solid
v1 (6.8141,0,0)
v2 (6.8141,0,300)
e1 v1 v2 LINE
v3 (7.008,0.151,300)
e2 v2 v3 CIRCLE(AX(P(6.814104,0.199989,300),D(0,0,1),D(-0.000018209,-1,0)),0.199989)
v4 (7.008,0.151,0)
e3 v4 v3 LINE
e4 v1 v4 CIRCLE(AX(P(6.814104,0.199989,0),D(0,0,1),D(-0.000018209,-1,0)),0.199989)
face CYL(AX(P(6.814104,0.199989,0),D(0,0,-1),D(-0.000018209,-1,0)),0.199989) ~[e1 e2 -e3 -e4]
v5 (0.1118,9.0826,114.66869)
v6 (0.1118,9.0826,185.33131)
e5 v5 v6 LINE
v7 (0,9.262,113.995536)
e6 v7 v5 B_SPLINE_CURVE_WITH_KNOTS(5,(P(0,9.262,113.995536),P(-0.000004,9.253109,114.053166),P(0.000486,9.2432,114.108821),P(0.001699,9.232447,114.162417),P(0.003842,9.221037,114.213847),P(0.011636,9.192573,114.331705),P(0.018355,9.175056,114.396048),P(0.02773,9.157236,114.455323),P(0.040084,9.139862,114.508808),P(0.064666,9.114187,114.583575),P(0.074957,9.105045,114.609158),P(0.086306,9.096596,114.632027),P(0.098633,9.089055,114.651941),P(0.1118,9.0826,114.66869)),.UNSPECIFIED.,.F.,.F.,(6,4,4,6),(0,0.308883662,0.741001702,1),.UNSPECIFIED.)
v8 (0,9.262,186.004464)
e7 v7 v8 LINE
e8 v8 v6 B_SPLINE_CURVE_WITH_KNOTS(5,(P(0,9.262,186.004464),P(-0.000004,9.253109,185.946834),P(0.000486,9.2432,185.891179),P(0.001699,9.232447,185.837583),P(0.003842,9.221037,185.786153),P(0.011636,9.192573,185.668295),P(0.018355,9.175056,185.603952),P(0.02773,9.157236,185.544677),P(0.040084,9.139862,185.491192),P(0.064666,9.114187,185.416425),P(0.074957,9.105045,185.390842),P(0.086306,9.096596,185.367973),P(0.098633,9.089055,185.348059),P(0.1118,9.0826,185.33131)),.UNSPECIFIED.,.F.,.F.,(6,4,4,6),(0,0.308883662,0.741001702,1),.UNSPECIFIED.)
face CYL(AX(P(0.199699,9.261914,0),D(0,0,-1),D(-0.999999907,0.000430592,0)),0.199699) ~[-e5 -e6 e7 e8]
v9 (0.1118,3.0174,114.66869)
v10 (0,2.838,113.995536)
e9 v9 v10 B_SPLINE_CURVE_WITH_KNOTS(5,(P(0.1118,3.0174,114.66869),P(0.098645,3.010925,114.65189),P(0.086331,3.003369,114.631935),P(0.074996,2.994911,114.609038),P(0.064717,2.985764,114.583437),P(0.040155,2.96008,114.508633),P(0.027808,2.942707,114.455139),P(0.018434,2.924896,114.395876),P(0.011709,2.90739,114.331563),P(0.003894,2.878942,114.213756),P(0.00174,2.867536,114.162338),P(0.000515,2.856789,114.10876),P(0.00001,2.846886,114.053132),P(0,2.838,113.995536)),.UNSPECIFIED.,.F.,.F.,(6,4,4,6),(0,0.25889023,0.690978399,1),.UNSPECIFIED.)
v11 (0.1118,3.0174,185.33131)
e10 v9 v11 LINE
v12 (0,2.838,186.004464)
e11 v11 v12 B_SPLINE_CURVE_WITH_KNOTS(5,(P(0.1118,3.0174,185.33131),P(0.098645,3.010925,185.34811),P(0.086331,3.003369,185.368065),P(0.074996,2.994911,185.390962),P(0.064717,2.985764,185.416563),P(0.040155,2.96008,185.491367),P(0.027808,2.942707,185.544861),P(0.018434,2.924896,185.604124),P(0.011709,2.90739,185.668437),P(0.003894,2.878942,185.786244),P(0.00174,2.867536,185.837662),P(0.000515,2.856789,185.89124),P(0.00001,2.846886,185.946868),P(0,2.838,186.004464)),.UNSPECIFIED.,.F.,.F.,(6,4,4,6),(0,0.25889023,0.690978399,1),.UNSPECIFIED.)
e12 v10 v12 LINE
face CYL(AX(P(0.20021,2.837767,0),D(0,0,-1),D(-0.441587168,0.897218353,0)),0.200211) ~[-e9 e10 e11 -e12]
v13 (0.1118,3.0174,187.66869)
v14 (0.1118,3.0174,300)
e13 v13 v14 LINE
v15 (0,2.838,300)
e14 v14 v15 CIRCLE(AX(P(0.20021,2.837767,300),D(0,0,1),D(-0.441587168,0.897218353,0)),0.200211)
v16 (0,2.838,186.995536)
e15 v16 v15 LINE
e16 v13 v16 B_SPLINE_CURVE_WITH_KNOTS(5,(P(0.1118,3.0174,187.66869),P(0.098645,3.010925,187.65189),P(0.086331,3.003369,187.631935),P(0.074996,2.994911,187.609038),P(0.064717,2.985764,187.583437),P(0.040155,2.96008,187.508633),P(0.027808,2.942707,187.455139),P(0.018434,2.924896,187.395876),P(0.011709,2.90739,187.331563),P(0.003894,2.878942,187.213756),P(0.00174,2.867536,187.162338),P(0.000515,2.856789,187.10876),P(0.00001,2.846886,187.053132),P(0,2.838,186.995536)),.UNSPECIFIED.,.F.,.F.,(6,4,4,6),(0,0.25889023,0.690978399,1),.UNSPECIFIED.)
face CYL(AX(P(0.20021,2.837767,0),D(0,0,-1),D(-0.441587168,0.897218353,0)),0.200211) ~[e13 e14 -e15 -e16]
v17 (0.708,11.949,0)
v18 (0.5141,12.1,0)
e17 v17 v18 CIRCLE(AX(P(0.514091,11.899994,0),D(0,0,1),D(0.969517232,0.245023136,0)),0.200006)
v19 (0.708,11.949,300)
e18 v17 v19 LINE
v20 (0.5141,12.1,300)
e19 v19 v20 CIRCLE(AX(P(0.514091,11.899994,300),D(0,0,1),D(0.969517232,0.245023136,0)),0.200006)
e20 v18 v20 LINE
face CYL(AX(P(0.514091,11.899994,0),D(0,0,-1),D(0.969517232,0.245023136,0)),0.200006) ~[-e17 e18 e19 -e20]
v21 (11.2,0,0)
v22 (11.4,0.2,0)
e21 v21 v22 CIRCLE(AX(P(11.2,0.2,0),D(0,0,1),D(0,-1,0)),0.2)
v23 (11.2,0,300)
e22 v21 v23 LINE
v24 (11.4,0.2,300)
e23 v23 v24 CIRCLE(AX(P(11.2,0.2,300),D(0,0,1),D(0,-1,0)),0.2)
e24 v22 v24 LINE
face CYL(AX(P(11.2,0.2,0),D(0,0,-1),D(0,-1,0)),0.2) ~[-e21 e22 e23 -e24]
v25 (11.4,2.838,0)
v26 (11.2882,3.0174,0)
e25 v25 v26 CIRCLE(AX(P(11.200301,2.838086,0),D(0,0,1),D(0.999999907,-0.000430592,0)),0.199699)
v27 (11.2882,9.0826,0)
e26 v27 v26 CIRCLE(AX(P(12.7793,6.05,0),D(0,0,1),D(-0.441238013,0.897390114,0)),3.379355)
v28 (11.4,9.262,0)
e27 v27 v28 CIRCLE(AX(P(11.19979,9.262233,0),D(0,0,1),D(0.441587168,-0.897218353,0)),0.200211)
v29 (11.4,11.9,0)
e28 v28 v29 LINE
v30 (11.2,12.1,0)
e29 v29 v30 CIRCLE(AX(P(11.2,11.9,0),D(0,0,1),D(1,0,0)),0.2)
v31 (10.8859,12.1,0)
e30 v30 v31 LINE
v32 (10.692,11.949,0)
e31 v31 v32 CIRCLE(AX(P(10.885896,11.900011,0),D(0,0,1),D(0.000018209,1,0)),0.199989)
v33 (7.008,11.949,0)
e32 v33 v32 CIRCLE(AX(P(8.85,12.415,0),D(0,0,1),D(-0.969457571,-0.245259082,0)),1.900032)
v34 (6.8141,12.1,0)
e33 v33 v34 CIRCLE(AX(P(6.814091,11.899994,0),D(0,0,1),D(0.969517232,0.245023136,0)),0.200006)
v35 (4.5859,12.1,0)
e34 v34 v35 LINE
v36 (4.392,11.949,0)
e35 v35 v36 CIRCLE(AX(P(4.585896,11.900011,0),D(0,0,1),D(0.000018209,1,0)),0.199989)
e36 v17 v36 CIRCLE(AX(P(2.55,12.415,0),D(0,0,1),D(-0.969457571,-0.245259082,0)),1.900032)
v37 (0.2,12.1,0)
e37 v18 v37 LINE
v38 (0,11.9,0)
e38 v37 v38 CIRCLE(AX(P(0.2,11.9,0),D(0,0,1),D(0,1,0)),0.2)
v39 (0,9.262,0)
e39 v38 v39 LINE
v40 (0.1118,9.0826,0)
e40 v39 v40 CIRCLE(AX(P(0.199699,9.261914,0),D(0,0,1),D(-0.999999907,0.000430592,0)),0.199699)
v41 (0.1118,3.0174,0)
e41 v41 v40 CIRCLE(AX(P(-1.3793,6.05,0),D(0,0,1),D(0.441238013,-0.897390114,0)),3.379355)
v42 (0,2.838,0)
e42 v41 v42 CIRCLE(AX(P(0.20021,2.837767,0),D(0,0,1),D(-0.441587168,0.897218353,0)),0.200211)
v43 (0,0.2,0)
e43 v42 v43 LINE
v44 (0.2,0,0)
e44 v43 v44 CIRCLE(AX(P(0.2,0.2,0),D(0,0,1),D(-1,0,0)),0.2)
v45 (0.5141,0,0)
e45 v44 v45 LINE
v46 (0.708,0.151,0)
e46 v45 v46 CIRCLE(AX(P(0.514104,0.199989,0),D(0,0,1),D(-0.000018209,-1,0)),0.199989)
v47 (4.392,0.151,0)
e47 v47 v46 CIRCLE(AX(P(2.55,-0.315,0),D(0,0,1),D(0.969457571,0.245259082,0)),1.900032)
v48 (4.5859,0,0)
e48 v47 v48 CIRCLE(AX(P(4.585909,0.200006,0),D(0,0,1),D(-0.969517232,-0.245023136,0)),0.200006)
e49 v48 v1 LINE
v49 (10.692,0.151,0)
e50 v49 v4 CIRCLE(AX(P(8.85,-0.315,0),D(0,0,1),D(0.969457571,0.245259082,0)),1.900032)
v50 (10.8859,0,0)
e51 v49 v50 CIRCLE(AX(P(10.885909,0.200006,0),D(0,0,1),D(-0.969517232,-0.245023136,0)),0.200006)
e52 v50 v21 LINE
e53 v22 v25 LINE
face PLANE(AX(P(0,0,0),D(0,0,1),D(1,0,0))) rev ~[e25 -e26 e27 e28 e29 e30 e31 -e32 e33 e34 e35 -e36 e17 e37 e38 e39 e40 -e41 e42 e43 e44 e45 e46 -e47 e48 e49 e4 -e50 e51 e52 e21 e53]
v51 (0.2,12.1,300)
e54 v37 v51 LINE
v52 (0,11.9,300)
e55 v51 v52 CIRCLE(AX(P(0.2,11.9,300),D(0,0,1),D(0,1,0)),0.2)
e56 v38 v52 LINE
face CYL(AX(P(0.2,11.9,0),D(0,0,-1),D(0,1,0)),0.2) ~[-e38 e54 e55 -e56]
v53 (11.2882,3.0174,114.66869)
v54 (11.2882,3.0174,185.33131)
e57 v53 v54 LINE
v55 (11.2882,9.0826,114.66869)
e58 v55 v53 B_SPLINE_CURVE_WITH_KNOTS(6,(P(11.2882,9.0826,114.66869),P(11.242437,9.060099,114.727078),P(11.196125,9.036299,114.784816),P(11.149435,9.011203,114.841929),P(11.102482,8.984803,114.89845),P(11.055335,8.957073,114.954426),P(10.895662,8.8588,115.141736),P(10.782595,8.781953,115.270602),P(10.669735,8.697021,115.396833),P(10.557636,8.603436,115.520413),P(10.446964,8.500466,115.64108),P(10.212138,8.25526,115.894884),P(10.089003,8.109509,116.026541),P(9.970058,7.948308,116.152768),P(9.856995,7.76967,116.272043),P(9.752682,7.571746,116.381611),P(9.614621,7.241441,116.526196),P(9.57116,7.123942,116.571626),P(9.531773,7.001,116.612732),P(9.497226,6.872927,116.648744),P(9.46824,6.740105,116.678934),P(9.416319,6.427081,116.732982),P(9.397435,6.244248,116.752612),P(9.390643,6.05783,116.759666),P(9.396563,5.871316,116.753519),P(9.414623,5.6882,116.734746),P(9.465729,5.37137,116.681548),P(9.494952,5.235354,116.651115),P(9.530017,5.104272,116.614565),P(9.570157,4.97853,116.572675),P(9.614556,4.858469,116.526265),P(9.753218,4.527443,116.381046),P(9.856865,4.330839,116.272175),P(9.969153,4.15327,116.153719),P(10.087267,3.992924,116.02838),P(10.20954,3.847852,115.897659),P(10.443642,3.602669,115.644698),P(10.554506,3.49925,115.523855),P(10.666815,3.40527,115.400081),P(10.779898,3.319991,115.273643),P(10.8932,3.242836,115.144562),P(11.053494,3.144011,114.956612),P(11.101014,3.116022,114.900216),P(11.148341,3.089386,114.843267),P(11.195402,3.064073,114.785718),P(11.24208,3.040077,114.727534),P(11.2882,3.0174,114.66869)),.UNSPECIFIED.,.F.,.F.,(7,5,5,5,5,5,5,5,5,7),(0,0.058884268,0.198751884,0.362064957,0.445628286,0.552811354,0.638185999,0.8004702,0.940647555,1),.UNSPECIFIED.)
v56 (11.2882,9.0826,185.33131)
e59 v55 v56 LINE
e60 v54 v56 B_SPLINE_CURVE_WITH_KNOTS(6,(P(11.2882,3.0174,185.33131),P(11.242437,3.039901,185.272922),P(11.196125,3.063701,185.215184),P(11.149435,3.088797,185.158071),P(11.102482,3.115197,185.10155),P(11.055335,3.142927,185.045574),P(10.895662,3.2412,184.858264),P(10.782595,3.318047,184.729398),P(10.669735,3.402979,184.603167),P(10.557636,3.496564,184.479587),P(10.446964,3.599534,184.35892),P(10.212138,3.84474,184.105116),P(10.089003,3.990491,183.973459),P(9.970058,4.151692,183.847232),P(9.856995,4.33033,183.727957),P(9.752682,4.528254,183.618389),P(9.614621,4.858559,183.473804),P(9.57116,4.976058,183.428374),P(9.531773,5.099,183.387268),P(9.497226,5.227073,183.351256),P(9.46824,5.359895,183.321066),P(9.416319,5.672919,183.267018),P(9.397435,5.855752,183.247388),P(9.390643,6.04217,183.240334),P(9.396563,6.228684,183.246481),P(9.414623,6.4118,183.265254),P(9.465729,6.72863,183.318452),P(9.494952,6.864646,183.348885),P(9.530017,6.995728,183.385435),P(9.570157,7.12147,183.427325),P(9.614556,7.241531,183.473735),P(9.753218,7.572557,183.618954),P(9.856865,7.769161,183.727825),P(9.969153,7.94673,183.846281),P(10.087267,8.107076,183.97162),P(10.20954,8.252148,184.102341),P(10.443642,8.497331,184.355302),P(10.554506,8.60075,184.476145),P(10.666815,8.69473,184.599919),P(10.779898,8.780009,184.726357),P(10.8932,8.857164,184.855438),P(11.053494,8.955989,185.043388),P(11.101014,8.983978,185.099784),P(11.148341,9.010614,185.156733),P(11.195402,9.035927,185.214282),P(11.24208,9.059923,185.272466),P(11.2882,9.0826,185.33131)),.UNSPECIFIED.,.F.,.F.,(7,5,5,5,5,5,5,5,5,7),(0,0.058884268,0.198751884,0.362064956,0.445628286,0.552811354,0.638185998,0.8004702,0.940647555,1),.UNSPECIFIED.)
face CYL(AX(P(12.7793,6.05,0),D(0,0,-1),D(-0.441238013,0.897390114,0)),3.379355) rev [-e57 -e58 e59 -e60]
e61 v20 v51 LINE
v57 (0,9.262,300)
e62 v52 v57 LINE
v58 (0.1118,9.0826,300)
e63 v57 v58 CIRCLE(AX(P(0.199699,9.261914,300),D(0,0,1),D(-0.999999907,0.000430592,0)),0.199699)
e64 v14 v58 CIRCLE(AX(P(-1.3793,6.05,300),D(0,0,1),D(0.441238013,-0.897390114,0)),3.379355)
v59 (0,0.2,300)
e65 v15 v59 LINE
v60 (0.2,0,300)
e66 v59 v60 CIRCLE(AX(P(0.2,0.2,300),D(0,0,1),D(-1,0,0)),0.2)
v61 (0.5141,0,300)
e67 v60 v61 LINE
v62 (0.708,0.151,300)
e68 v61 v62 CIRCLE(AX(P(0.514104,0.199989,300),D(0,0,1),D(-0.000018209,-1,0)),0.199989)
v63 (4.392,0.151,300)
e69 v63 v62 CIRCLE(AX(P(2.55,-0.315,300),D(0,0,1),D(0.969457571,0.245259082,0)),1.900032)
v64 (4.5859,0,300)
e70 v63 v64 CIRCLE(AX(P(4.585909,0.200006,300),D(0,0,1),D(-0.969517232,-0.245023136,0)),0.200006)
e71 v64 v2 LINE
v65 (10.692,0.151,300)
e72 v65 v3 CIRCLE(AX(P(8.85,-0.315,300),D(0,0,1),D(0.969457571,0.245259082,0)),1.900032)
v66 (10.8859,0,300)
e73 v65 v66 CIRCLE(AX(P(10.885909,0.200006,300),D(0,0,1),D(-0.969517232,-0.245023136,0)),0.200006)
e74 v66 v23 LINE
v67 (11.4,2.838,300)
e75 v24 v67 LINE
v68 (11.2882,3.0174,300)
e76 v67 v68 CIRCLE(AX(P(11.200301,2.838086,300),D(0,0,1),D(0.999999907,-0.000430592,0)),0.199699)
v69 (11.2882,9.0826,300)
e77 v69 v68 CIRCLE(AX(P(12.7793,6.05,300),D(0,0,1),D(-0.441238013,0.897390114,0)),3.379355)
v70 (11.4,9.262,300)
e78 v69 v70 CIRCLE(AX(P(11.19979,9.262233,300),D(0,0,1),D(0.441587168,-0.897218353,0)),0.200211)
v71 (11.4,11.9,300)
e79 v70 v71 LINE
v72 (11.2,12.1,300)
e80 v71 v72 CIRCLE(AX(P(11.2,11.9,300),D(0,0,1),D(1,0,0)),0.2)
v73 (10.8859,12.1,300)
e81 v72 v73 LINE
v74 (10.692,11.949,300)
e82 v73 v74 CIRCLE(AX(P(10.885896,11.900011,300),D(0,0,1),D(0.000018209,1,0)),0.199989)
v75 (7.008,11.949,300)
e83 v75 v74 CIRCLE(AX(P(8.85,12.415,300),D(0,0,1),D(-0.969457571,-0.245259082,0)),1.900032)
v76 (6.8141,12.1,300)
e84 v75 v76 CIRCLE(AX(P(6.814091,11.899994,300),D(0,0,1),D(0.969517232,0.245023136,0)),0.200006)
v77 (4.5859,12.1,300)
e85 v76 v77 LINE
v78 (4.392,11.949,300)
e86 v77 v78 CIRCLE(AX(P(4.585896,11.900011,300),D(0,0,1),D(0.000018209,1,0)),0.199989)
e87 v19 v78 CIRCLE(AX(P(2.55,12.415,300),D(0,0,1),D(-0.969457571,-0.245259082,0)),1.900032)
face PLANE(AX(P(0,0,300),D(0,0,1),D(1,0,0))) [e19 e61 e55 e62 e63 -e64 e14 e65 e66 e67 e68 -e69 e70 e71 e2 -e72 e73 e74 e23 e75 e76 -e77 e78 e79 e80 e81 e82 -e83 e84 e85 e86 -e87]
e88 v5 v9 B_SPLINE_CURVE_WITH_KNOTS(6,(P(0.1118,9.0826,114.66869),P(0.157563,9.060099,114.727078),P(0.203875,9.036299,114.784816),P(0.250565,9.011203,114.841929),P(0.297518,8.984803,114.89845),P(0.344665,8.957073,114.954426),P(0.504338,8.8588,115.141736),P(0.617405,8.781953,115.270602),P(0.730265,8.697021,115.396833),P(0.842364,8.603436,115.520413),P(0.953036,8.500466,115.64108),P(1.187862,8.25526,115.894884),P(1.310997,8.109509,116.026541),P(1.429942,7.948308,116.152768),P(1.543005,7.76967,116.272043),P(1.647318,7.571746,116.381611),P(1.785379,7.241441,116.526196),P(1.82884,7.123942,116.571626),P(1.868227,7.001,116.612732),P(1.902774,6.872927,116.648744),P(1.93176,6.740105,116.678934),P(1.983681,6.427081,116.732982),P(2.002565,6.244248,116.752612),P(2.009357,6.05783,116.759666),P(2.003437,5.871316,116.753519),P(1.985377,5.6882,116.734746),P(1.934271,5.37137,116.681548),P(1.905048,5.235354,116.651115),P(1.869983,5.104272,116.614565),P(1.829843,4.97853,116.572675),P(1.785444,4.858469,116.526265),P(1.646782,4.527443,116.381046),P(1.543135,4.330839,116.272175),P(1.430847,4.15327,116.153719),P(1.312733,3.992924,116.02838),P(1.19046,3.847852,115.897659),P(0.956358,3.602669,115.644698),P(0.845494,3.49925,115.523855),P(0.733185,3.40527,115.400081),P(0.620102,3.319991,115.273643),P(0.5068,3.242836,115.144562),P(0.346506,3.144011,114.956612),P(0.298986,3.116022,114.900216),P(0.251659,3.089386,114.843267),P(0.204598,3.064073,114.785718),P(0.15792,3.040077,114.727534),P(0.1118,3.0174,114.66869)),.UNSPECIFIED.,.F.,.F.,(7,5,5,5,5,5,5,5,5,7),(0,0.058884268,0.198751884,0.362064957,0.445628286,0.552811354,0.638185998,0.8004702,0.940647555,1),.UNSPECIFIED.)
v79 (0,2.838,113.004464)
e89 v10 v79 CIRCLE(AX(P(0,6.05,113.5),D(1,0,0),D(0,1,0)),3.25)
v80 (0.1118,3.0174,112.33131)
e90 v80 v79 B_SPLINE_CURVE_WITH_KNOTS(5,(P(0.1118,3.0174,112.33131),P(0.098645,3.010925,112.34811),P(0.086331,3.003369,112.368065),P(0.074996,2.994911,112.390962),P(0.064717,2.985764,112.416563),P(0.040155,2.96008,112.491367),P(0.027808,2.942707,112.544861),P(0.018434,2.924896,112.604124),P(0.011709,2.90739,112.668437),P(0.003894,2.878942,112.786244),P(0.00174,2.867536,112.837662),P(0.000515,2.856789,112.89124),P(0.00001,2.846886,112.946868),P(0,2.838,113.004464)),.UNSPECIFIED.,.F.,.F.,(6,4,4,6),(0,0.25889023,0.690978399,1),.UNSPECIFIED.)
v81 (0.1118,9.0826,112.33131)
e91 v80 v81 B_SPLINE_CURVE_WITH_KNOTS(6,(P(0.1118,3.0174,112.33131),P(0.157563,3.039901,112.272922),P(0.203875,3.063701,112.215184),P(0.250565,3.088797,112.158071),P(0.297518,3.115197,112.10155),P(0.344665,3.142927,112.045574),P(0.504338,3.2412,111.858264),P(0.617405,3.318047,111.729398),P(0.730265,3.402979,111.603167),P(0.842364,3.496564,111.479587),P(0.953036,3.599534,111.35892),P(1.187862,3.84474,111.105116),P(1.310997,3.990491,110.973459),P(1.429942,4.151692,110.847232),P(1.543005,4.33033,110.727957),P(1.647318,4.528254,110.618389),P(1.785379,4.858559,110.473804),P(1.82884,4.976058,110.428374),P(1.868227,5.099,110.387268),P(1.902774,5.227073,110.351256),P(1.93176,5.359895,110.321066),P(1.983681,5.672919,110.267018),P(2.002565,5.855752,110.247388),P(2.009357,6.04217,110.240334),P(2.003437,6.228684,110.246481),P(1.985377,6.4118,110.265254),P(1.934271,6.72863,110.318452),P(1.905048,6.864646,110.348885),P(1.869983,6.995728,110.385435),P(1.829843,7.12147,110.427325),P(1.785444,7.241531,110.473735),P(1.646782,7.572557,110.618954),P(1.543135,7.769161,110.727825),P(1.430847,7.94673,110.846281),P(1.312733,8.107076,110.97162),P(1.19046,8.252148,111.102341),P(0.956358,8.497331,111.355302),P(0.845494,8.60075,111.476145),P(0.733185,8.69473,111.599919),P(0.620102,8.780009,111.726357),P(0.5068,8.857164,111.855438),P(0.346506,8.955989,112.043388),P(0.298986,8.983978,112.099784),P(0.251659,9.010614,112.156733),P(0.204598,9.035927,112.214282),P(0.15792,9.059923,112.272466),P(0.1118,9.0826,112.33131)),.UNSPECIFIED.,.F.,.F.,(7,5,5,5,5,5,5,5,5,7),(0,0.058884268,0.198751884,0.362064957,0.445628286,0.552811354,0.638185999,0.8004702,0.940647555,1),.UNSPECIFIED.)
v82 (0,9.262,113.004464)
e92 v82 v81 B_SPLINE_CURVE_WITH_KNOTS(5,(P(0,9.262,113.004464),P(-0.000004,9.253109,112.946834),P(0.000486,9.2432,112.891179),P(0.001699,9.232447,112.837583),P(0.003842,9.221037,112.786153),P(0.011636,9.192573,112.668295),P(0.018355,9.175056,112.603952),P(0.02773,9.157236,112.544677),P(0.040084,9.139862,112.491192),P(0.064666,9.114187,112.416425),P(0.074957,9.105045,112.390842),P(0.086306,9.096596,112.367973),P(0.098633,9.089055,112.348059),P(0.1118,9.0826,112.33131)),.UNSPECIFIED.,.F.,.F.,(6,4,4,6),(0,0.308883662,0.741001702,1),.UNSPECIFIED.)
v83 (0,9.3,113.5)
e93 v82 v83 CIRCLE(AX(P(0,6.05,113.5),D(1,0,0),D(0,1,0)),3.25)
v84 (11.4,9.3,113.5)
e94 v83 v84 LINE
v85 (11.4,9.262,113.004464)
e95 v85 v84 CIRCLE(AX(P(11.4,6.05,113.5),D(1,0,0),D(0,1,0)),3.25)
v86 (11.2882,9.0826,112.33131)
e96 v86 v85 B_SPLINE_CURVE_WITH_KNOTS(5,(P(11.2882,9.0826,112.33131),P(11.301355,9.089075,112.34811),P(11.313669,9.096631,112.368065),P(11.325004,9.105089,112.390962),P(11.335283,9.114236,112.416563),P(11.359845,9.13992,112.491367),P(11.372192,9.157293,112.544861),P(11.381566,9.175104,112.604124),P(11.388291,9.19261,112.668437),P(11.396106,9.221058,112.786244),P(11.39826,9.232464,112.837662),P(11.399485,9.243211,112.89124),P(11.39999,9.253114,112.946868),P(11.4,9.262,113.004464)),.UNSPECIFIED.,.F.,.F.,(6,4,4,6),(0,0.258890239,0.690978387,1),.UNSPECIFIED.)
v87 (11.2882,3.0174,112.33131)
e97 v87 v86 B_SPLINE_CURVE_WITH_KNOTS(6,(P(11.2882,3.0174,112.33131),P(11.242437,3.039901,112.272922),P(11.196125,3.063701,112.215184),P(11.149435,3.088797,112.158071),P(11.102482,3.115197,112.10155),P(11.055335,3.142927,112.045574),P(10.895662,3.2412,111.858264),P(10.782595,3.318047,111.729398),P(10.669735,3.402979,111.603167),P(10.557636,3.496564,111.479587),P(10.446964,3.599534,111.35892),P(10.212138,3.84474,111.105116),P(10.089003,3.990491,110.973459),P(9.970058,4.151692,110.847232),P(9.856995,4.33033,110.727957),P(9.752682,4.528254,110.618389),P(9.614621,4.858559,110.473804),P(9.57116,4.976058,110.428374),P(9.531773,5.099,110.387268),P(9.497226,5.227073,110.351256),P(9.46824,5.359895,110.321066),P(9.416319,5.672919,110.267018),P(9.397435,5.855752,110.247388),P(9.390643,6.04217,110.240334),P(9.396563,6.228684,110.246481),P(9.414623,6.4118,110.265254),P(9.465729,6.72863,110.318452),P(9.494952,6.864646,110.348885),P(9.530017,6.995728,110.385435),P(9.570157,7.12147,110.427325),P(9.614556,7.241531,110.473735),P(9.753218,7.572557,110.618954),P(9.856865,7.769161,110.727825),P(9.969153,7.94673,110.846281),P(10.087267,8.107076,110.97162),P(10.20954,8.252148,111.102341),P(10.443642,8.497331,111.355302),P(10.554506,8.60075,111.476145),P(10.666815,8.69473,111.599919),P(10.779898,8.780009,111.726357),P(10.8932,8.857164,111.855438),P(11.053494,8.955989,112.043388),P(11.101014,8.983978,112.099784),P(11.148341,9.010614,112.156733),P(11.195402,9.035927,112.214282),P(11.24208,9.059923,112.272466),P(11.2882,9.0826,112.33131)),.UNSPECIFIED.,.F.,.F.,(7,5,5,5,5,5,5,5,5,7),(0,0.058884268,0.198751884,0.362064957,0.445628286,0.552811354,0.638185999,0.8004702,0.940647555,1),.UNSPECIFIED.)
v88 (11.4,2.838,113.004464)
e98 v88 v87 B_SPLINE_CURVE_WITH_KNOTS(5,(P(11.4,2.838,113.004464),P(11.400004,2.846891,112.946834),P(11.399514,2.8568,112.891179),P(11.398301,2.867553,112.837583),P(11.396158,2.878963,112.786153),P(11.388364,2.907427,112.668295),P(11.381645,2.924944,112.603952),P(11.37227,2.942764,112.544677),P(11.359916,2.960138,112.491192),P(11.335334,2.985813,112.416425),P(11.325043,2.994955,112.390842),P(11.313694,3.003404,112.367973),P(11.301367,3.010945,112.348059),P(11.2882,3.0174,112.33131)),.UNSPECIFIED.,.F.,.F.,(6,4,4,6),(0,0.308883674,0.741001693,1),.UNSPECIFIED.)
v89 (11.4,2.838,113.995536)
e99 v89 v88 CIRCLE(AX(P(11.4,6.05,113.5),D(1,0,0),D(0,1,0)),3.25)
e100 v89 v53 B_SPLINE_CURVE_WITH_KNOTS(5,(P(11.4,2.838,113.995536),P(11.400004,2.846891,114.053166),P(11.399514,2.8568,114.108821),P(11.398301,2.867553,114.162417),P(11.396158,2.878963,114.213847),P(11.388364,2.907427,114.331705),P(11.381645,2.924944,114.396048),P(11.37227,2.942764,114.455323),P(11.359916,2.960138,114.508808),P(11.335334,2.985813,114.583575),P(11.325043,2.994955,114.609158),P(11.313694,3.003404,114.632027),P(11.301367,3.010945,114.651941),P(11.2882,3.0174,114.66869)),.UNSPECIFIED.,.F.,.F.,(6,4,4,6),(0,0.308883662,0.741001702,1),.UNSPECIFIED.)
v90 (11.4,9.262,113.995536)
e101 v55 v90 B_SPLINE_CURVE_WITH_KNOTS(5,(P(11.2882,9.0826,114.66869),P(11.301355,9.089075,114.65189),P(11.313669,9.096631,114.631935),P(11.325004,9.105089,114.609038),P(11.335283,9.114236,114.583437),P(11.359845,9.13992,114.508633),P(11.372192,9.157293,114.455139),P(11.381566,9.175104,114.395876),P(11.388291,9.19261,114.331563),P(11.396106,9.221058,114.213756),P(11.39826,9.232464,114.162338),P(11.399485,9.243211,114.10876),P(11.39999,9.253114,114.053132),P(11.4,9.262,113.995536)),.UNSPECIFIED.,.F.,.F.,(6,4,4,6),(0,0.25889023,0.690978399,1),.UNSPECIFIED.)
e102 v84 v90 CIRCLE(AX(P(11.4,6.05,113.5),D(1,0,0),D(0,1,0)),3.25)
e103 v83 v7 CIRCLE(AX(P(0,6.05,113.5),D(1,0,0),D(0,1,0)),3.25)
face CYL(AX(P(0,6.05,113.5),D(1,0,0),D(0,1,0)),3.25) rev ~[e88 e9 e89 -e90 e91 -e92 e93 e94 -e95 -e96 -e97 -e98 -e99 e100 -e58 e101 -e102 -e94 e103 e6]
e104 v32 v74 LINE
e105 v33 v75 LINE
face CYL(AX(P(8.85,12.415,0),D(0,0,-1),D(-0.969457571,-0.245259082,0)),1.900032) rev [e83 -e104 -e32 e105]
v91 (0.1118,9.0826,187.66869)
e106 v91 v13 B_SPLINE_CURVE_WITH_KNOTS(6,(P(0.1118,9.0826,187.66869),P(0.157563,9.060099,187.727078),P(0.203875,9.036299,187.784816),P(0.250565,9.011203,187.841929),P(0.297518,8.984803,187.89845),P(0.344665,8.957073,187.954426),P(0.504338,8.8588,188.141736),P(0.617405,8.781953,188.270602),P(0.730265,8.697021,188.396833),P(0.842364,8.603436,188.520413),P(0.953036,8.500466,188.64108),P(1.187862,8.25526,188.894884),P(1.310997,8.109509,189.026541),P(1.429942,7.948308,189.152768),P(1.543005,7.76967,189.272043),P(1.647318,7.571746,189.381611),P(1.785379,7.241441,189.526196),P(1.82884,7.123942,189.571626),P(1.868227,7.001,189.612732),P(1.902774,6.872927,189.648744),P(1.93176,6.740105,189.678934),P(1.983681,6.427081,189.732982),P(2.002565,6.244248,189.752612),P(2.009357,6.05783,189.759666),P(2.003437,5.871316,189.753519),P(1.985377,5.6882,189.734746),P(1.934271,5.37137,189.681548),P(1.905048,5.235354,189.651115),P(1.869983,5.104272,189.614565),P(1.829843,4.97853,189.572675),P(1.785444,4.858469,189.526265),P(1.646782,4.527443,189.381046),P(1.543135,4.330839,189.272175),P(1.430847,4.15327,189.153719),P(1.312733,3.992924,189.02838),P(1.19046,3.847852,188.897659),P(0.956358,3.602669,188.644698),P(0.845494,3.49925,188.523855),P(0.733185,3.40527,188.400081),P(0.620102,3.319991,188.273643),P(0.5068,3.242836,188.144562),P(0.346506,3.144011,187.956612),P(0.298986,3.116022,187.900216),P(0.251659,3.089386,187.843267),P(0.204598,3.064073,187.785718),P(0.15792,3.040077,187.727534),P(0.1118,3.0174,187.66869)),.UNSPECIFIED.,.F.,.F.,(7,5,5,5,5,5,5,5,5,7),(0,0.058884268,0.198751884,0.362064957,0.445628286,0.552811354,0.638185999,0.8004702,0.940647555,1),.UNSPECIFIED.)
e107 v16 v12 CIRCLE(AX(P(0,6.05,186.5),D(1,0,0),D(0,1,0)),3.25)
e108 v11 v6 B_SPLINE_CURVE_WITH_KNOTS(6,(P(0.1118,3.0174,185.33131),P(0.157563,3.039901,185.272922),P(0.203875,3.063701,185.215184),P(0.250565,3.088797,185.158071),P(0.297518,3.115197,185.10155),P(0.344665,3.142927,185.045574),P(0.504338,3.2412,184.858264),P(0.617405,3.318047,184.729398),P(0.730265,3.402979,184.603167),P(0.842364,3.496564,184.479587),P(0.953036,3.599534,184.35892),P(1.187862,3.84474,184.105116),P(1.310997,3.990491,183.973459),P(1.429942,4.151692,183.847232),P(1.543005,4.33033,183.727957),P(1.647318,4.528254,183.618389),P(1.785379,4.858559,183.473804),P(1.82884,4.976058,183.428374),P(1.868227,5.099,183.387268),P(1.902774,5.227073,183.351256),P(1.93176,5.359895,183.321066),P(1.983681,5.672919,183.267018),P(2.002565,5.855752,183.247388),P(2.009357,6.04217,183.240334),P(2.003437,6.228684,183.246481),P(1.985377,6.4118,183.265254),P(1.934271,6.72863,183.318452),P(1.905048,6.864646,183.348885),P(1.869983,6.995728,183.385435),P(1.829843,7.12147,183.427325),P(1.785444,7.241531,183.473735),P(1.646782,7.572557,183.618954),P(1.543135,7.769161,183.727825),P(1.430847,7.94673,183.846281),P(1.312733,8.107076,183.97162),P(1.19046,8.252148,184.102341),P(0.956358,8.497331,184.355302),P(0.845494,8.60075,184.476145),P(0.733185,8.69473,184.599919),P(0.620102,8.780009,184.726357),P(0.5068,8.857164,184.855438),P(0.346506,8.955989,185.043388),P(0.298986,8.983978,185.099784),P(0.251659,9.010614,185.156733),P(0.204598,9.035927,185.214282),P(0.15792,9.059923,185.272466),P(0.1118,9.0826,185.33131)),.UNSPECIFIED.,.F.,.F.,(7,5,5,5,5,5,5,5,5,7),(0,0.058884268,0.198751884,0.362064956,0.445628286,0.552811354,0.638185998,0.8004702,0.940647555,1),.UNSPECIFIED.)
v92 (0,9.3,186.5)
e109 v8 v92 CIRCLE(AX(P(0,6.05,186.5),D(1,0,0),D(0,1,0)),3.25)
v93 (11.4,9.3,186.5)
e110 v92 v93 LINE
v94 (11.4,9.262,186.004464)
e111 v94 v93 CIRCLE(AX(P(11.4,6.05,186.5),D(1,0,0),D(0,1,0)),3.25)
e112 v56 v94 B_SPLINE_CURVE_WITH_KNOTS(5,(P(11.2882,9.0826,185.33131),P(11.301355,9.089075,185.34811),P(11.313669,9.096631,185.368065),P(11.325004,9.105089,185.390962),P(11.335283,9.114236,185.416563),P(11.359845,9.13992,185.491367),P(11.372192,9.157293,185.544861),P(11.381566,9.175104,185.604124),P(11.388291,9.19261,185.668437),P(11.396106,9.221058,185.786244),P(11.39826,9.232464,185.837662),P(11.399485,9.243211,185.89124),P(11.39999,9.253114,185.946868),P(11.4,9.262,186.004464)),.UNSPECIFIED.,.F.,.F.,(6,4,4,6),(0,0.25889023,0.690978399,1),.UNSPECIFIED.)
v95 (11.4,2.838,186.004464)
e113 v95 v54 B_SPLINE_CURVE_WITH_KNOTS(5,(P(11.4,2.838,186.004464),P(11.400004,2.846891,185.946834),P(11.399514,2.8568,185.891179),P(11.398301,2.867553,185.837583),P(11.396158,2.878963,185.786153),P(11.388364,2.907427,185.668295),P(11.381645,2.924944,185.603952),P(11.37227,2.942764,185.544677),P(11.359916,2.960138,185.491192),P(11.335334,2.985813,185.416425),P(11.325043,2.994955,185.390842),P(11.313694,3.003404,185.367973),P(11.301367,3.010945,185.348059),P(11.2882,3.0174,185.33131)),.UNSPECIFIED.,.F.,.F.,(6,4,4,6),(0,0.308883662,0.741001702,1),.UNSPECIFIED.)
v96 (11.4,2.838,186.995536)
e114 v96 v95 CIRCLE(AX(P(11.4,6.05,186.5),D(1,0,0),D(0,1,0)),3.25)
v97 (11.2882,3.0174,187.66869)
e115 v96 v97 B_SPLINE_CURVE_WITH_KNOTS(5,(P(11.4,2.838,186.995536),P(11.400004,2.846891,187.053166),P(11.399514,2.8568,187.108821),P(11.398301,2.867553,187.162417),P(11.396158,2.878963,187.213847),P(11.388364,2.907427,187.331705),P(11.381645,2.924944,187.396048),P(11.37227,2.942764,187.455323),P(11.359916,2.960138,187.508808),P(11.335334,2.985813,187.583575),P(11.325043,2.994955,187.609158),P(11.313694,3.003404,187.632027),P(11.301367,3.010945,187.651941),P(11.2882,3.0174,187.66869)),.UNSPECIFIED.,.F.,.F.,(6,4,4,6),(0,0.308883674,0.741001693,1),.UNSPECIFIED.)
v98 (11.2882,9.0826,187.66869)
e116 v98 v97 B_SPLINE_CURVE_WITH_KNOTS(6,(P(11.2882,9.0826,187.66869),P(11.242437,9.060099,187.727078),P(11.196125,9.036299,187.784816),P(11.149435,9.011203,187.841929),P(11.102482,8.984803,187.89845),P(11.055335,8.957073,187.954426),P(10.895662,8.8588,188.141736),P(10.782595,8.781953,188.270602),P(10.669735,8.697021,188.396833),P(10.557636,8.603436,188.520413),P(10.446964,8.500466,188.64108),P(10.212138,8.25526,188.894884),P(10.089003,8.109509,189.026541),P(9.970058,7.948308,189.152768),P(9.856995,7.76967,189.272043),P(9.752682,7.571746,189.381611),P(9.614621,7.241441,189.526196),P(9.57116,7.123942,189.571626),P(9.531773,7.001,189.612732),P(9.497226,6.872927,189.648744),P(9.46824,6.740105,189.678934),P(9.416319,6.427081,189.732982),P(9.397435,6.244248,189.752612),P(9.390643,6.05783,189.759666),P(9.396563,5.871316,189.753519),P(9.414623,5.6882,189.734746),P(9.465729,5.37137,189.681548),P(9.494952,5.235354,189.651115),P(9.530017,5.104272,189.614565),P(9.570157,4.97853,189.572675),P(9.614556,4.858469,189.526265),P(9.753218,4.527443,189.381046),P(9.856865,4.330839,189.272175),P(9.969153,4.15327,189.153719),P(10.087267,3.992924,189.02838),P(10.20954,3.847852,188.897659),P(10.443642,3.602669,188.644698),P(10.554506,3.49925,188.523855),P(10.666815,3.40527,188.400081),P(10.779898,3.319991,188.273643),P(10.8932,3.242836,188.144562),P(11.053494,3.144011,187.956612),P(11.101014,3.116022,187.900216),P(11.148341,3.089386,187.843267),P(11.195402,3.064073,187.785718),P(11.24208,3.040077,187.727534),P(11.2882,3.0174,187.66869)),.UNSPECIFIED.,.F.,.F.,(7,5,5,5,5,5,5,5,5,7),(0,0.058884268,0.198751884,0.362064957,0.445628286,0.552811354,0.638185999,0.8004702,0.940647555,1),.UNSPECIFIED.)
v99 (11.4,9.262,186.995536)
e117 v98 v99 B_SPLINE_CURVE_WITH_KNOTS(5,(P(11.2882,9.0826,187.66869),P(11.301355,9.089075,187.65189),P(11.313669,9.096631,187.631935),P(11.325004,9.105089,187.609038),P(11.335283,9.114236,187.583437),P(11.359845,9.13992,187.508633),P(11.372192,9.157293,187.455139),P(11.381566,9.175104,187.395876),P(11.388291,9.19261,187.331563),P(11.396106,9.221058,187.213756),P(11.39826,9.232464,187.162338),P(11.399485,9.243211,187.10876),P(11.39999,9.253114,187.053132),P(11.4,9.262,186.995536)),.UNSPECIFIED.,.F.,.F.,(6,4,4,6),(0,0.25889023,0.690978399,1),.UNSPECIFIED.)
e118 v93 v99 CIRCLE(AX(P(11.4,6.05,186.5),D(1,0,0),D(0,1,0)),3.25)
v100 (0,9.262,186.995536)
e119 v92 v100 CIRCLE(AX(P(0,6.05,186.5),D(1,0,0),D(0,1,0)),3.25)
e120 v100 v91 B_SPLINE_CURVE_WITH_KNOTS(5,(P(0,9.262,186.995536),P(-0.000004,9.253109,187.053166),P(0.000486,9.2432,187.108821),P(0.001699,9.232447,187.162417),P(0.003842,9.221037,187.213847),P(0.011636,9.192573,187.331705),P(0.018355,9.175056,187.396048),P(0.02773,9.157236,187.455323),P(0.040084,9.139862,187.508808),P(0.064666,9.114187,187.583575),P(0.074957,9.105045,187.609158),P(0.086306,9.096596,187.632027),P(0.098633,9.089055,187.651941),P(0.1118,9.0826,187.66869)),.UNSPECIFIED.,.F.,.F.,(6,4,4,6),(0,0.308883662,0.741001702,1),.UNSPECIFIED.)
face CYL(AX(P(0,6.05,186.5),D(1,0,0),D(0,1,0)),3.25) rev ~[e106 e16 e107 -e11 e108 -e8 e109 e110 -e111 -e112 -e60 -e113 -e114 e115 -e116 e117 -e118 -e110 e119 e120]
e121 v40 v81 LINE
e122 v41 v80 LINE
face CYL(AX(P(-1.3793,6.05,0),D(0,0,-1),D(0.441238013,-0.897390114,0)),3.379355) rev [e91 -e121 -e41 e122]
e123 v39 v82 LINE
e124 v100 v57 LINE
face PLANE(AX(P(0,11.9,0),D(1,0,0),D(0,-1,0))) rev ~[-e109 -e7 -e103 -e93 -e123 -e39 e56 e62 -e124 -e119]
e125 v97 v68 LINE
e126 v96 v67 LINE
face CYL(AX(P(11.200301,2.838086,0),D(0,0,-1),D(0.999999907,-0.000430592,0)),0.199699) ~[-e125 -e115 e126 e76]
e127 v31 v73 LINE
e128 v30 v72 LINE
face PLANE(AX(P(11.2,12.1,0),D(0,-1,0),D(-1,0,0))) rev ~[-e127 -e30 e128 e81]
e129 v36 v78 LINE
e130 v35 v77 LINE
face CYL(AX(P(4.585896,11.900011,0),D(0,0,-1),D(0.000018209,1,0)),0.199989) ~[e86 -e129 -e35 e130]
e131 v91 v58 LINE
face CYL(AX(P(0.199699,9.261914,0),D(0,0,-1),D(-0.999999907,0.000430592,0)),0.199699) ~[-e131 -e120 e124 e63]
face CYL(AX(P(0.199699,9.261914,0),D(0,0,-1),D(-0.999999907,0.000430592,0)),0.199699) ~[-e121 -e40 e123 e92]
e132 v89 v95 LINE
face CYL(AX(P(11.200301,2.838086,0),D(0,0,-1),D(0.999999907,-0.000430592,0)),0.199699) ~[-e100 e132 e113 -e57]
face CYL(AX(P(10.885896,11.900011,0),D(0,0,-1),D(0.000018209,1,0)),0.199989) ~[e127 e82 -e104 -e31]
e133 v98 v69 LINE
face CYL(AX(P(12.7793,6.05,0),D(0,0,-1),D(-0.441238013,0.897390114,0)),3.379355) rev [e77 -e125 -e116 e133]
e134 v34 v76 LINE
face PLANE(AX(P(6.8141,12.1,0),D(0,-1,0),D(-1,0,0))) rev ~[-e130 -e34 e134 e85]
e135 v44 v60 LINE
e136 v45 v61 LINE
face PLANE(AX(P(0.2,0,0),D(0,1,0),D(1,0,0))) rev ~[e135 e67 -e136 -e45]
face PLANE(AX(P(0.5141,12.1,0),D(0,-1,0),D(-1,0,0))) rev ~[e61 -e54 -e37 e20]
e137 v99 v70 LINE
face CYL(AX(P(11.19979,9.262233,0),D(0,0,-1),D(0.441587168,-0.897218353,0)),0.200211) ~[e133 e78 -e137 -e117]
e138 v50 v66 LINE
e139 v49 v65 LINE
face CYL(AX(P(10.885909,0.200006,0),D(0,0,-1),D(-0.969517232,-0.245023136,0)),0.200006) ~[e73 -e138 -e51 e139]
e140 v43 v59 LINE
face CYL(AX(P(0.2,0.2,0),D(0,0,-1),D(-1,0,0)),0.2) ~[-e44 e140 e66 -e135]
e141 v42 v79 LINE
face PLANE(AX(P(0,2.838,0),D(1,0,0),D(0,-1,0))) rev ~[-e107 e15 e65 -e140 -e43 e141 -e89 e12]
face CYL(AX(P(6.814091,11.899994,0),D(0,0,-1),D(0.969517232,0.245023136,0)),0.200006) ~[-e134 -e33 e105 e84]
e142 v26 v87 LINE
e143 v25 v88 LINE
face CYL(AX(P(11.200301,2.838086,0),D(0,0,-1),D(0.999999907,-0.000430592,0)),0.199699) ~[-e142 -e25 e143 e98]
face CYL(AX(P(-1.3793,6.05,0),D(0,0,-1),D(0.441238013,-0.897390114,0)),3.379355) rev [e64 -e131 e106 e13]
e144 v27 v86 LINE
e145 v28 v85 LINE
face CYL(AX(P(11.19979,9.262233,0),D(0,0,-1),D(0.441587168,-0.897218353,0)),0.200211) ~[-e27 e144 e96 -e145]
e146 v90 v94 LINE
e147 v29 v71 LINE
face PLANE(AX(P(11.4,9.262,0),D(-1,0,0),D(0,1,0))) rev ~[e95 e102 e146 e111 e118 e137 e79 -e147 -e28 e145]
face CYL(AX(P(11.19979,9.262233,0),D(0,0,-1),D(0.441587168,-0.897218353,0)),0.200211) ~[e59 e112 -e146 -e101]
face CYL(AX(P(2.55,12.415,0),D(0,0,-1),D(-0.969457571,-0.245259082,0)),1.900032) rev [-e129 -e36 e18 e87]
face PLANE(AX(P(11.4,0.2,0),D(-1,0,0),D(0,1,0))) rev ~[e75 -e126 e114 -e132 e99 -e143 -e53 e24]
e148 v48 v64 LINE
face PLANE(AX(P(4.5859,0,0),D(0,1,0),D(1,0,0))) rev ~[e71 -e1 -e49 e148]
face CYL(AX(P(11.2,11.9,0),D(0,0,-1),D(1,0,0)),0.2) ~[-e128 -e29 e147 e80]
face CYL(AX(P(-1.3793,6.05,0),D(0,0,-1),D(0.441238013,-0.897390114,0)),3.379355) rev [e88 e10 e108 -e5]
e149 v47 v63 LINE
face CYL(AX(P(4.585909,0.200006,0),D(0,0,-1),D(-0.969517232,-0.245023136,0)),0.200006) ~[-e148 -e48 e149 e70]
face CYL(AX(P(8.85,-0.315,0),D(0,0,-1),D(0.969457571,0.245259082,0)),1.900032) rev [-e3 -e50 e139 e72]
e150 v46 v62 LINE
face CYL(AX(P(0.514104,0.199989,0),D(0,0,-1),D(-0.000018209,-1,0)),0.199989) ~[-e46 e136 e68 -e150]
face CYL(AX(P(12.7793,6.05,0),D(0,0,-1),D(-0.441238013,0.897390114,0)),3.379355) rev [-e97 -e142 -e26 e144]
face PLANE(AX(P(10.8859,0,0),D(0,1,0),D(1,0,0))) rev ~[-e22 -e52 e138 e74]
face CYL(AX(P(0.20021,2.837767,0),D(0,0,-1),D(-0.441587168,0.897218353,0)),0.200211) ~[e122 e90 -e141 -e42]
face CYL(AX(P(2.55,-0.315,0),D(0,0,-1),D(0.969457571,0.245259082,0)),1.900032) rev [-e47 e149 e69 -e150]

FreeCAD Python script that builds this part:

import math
import FreeCAD as App
import Part
import Sketcher


def add_polygon(sketch, points):
    """Adds a closed chain of lines whose ends are joined by coincident constraints."""
    first, n = sketch.GeometryCount, len(points)
    for a, b in zip(points, points[1:] + points[:1]):
        sketch.addGeometry(Part.LineSegment(App.Vector(*a, 0), App.Vector(*b, 0)), False)
    for i in range(n):
        sketch.addConstraint(Sketcher.Constraint("Coincident", first + i, 2, first + (i + 1) % n, 1))

doc = App.newDocument("Part")
body = doc.addObject("PartDesign::Body", "Body")

# Sketch on XY plane
sketch1 = doc.addObject("Sketcher::SketchObject", "Sketch")
body.addObject(sketch1)
sketch1.AttachmentSupport = (doc.XY_Plane, [""])
sketch1.MapMode = "FlatFace"
sketch1.addGeometry([
    Part.LineSegment(App.Vector(0, 2.838, 0), App.Vector(0, 0.2, 0)),  # 0
    Part.ArcOfCircle(Part.Circle(App.Vector(0.2, 0.2, 0), App.Vector(0, 0, 1), 0.2), math.radians(180), math.radians(270)),  # 1
    Part.LineSegment(App.Vector(0.2, 0, 0), App.Vector(0.5141, 0, 0)),  # 2
    Part.ArcOfCircle(Part.Circle(App.Vector(0.5141, 0.2, 0), App.Vector(0, 0, 1), 0.2), math.radians(-90), math.radians(-14.182158)),  # 3
    Part.ArcOfCircle(Part.Circle(App.Vector(2.55, -0.315, 0), App.Vector(0, 0, 1), 1.900032), math.radians(14.197145), math.radians(165.802855)),  # 4
    Part.ArcOfCircle(Part.Circle(App.Vector(4.5859, 0.2, 0), App.Vector(0, 0, 1), 0.199996), math.radians(-165.817842), math.radians(-90)),  # 5
    Part.LineSegment(App.Vector(4.5859, 0, 0), App.Vector(6.8141, 0, 0)),  # 6
    Part.ArcOfCircle(Part.Circle(App.Vector(6.8141, 0.2, 0), App.Vector(0, 0, 1), 0.2), math.radians(-90), math.radians(-14.182158)),  # 7
    Part.ArcOfCircle(Part.Circle(App.Vector(8.85, -0.315, 0), App.Vector(0, 0, 1), 1.900032), math.radians(14.197145), math.radians(165.802855)),  # 8
    Part.ArcOfCircle(Part.Circle(App.Vector(10.8859, 0.2, 0), App.Vector(0, 0, 1), 0.199996), math.radians(-165.817842), math.radians(-90)),  # 9
    Part.LineSegment(App.Vector(10.8859, 0, 0), App.Vector(11.2, 0, 0)),  # 10
    Part.ArcOfCircle(Part.Circle(App.Vector(11.2, 0.2, 0), App.Vector(0, 0, 1), 0.2), math.radians(-90), math.radians(0)),  # 11
    Part.LineSegment(App.Vector(11.4, 0.2, 0), App.Vector(11.4, 2.838, 0)),  # 12
    Part.ArcOfCircle(Part.Circle(App.Vector(11.2, 2.838, 0), App.Vector(0, 0, 1), 0.2), math.radians(0), math.radians(63.819478)),  # 13
    Part.ArcOfCircle(Part.Circle(App.Vector(12.7793, 6.05, 0), App.Vector(0, 0, 1), 3.379355), math.radians(116.182898), math.radians(243.817102)),  # 14
    Part.ArcOfCircle(Part.Circle(App.Vector(11.2, 9.262, 0), App.Vector(0, 0, 1), 0.199909), math.radians(-63.819478), math.radians(0)),  # 15
    Part.LineSegment(App.Vector(11.4, 9.262, 0), App.Vector(11.4, 11.9, 0)),  # 16
    Part.ArcOfCircle(Part.Circle(App.Vector(11.2, 11.9, 0), App.Vector(0, 0, 1), 0.2), math.radians(0), math.radians(90)),  # 17
    Part.LineSegment(App.Vector(11.2, 12.1, 0), App.Vector(10.8859, 12.1, 0)),  # 18
    Part.ArcOfCircle(Part.Circle(App.Vector(10.8859, 11.9, 0), App.Vector(0, 0, 1), 0.2), math.radians(90), math.radians(165.817842)),  # 19
    Part.ArcOfCircle(Part.Circle(App.Vector(8.85, 12.415, 0), App.Vector(0, 0, 1), 1.900032), math.radians(-165.802855), math.radians(-14.197145)),  # 20
    Part.ArcOfCircle(Part.Circle(App.Vector(6.8141, 11.9, 0), App.Vector(0, 0, 1), 0.199996), math.radians(14.182158), math.radians(90)),  # 21
    Part.LineSegment(App.Vector(6.8141, 12.1, 0), App.Vector(4.5859, 12.1, 0)),  # 22
    Part.ArcOfCircle(Part.Circle(App.Vector(4.5859, 11.9, 0), App.Vector(0, 0, 1), 0.2), math.radians(90), math.radians(165.817842)),  # 23
    Part.ArcOfCircle(Part.Circle(App.Vector(2.55, 12.415, 0), App.Vector(0, 0, 1), 1.900032), math.radians(-165.802855), math.radians(-14.197145)),  # 24
    Part.ArcOfCircle(Part.Circle(App.Vector(0.5141, 11.9, 0), App.Vector(0, 0, 1), 0.199996), math.radians(14.182158), math.radians(90)),  # 25
    Part.LineSegment(App.Vector(0.5141, 12.1, 0), App.Vector(0.2, 12.1, 0)),  # 26
    Part.ArcOfCircle(Part.Circle(App.Vector(0.2, 11.9, 0), App.Vector(0, 0, 1), 0.2), math.radians(90), math.radians(180)),  # 27
    Part.LineSegment(App.Vector(0, 11.9, 0), App.Vector(0, 9.262, 0)),  # 28
    Part.ArcOfCircle(Part.Circle(App.Vector(0.2, 9.262, 0), App.Vector(0, 0, 1), 0.2), math.radians(180), math.radians(243.819478)),  # 29
    Part.ArcOfCircle(Part.Circle(App.Vector(-1.3793, 6.05, 0), App.Vector(0, 0, 1), 3.379355), math.radians(-63.817102), math.radians(63.817102)),  # 30
    Part.ArcOfCircle(Part.Circle(App.Vector(0.2, 2.838, 0), App.Vector(0, 0, 1), 0.199909), math.radians(116.180522), math.radians(180)),  # 31
], False)
sketch1.addConstraint([
    Sketcher.Constraint("Tangent", 0, 2, 1, 1),
    Sketcher.Constraint("Tangent", 1, 2, 2, 1),
    Sketcher.Constraint("Tangent", 2, 2, 3, 1),
    Sketcher.Constraint("Tangent", 3, 2, 4, 2),
    Sketcher.Constraint("Tangent", 4, 1, 5, 1),
    Sketcher.Constraint("Tangent", 5, 2, 6, 1),
    Sketcher.Constraint("Tangent", 6, 2, 7, 1),
    Sketcher.Constraint("Tangent", 7, 2, 8, 2),
    Sketcher.Constraint("Tangent", 8, 1, 9, 1),
    Sketcher.Constraint("Tangent", 9, 2, 10, 1),
    Sketcher.Constraint("Tangent", 10, 2, 11, 1),
    Sketcher.Constraint("Tangent", 11, 2, 12, 1),
    Sketcher.Constraint("Tangent", 12, 2, 13, 1),
    Sketcher.Constraint("Tangent", 13, 2, 14, 2),
    Sketcher.Constraint("Tangent", 14, 1, 15, 1),
    Sketcher.Constraint("Tangent", 15, 2, 16, 1),
    Sketcher.Constraint("Tangent", 16, 2, 17, 1),
    Sketcher.Constraint("Tangent", 17, 2, 18, 1),
    Sketcher.Constraint("Tangent", 18, 2, 19, 1),
    Sketcher.Constraint("Tangent", 19, 2, 20, 2),
    Sketcher.Constraint("Tangent", 20, 1, 21, 1),
    Sketcher.Constraint("Tangent", 21, 2, 22, 1),
    Sketcher.Constraint("Tangent", 22, 2, 23, 1),
    Sketcher.Constraint("Tangent", 23, 2, 24, 2),
    Sketcher.Constraint("Tangent", 24, 1, 25, 1),
    Sketcher.Constraint("Tangent", 25, 2, 26, 1),
    Sketcher.Constraint("Tangent", 26, 2, 27, 1),
    Sketcher.Constraint("Tangent", 27, 2, 28, 1),
    Sketcher.Constraint("Tangent", 28, 2, 29, 1),
    Sketcher.Constraint("Tangent", 29, 2, 30, 2),
    Sketcher.Constraint("Tangent", 30, 1, 31, 1),
    Sketcher.Constraint("Tangent", 31, 2, 0, 1),
    Sketcher.Constraint("Vertical", 0),
    Sketcher.Constraint("Horizontal", 2),
    Sketcher.Constraint("Horizontal", 6),
    Sketcher.Constraint("Horizontal", 10),
    Sketcher.Constraint("Vertical", 12),
    Sketcher.Constraint("Vertical", 16),
    Sketcher.Constraint("Horizontal", 18),
    Sketcher.Constraint("Horizontal", 22),
    Sketcher.Constraint("Horizontal", 26),
    Sketcher.Constraint("Vertical", 28),
    Sketcher.Constraint("Equal", 1, 3),
    Sketcher.Constraint("Equal", 3, 5),
    Sketcher.Constraint("Equal", 5, 7),
    Sketcher.Constraint("Equal", 4, 8),
    Sketcher.Constraint("Equal", 7, 9),
    Sketcher.Constraint("Equal", 9, 11),
    Sketcher.Constraint("Equal", 11, 13),
    Sketcher.Constraint("Equal", 13, 15),
    Sketcher.Constraint("Equal", 15, 17),
    Sketcher.Constraint("Equal", 17, 19),
    Sketcher.Constraint("Equal", 8, 20),
    Sketcher.Constraint("Equal", 19, 21),
    Sketcher.Constraint("Equal", 21, 23),
    Sketcher.Constraint("Equal", 20, 24),
    Sketcher.Constraint("Equal", 23, 25),
    Sketcher.Constraint("Equal", 25, 27),
    Sketcher.Constraint("Equal", 27, 29),
    Sketcher.Constraint("Equal", 14, 30),
    Sketcher.Constraint("Equal", 29, 31),
    Sketcher.Constraint("PointOnObject", 0, 2, -2),
    Sketcher.Constraint("PointOnObject", 1, 2, -1),
    Sketcher.Constraint("PointOnObject", 5, 2, -1),
    Sketcher.Constraint("PointOnObject", 9, 2, -1),
    Sketcher.Constraint("PointOnObject", 27, 2, -2),
    Sketcher.Constraint("Horizontal", 4, 3, 8, 3),
    Sketcher.Constraint("Horizontal", 19, 3, 21, 3),
    Sketcher.Constraint("Horizontal", 20, 3, 24, 3),
    Sketcher.Constraint("Horizontal", 23, 3, 25, 3),
    Sketcher.Constraint("Horizontal", 15, 3, 29, 3),
    Sketcher.Constraint("Horizontal", 14, 3, 30, 3),
    Sketcher.Constraint("Horizontal", 13, 3, 31, 3),
    Sketcher.Constraint("Vertical", 9, 3, 19, 3),
    Sketcher.Constraint("Vertical", 8, 3, 20, 3),
    Sketcher.Constraint("Vertical", 5, 3, 23, 3),
    Sketcher.Constraint("Equal", 2, 10),
    Sketcher.Constraint("Equal", 12, 16),
    Sketcher.Constraint("Radius", 1, 0.2),
    Sketcher.Constraint("Radius", 4, 1.9),
    Sketcher.Constraint("DistanceX", -1, 1, 11, 3, 11.2),
    Sketcher.Constraint("DistanceY", -1, 1, 17, 3, 11.9),
    Sketcher.Constraint("Radius", 14, 3.3794),
    Sketcher.Constraint("DistanceX", 3, 3, 7, 3, 6.3),
    Sketcher.Constraint("DistanceX", 2, 1, 2, 2, 0.314),
    Sketcher.Constraint("DistanceY", 0, 2, 0, 1, 2.638),
])
pad1 = doc.addObject("PartDesign::Pad", "Pad")
body.addObject(pad1)
pad1.Profile = sketch1
pad1.Length = 300

# Sketch on XY plane
sketch2 = doc.addObject("Sketcher::SketchObject", "Sketch001")
body.addObject(sketch2)
sketch2.AttachmentSupport = (doc.XY_Plane, [""])
sketch2.MapMode = "FlatFace"
sketch2.AttachmentOffset = App.Placement(App.Vector(0, 0, 113.5), App.Rotation())
add_polygon(sketch2, [(0, 6.05), (11.4, 6.05), (11.4, 9.3), (0, 9.3)])  # lines 0-3
sketch2.addGeometry(Part.LineSegment(App.Vector(0, 6.05, 0), App.Vector(11.4, 6.05, 0)), True)  # axis
sketch2.addConstraint([
    Sketcher.Constraint("Horizontal", 0),
    Sketcher.Constraint("Vertical", 1),
    Sketcher.Constraint("Horizontal", 2),
    Sketcher.Constraint("Vertical", 3),
    Sketcher.Constraint("Horizontal", 4),
    Sketcher.Constraint("Coincident", 4, 1, 3, 2),
    Sketcher.Constraint("PointOnObject", 2, 2, -2),
    Sketcher.Constraint("Vertical", 1, 2, 4, 2),
    Sketcher.Constraint("DistanceX", 0, 1, 0, 2, 11.4),
    Sketcher.Constraint("DistanceY", 1, 1, 1, 2, 3.25),
    Sketcher.Constraint("DistanceY", -1, 1, 1, 2, 9.3),
])
groove = doc.addObject("PartDesign::Groove", "Groove")
body.addObject(groove)
groove.Profile = sketch2
groove.ReferenceAxis = (sketch2, ["Axis0"])
groove.Angle = 360
doc.recompute()

linearpattern = doc.addObject("PartDesign::LinearPattern", "LinearPattern")
body.addObject(linearpattern)
linearpattern.Originals = [groove]
linearpattern.Direction = (doc.Z_Axis, [""])
linearpattern.Mode = "offset"
linearpattern.Offset = 73
linearpattern.Occurrences = 2
body.Tip = linearpattern

doc.recompute()
